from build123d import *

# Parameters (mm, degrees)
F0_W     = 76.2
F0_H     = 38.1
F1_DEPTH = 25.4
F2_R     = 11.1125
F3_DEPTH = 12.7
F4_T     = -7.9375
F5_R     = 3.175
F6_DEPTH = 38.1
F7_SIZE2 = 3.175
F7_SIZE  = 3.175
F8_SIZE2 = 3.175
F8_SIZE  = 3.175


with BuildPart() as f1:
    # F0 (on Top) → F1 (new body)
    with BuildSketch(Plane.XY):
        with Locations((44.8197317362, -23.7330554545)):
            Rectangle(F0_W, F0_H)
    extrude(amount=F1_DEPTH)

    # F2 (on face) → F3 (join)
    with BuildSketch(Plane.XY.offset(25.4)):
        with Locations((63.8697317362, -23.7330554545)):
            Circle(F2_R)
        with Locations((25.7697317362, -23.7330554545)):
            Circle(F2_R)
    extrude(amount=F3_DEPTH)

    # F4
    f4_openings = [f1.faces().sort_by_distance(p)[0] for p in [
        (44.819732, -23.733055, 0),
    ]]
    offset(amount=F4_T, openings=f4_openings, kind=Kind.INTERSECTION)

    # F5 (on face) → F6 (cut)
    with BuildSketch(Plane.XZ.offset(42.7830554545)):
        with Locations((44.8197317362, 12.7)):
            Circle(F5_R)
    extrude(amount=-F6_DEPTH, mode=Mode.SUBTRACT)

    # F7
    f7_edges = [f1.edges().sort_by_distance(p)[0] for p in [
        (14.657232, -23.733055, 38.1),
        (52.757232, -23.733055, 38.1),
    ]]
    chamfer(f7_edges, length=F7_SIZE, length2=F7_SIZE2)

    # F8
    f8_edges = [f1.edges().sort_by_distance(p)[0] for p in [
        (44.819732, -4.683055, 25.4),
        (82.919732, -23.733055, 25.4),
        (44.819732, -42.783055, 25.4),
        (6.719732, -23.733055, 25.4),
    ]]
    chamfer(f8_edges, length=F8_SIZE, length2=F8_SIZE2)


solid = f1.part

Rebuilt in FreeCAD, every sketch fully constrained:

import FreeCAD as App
import Part
import Sketcher
Q = App.Units.Quantity


def edges_at(feature, points):
    """Names of the edges that pass closest to the given points."""
    edges = feature.Shape.Edges
    near = lambda p: min(range(len(edges)), key=lambda i: edges[i].distToShape(Part.Vertex(*p))[0])
    return sorted({f"Edge{near(p) + 1}" for p in points})


def faces_at(feature, points):
    """Names of the faces that lie closest to the given points."""
    faces = feature.Shape.Faces
    near = lambda p: min(range(len(faces)), key=lambda i: faces[i].distToShape(Part.Vertex(*p))[0])
    return sorted({f"Face{near(p) + 1}" for p in points})

doc = App.newDocument("Part")
body = doc.addObject("PartDesign::Body", "Body")

sketch1 = body.newObject("Sketcher::SketchObject", "Sketch")
sketch1.AttachmentSupport = (doc.getObject("XY_Plane"), [""])
sketch1.MapMode = "FlatFace"
sketch1.addGeometry(Part.LineSegment(App.Vector(6.719732, -4.683055, 0), App.Vector(6.719732, -42.783055, 0)), False)
sketch1.addGeometry(Part.LineSegment(App.Vector(6.719732, -42.783055, 0), App.Vector(82.919732, -42.783055, 0)), False)
sketch1.addGeometry(Part.LineSegment(App.Vector(82.919732, -42.783055, 0), App.Vector(82.919732, -4.683055, 0)), False)
sketch1.addGeometry(Part.LineSegment(App.Vector(82.919732, -4.683055, 0), App.Vector(6.719732, -4.683055, 0)), False)
sketch1.addConstraint(Sketcher.Constraint("Coincident", 0, 2, 1, 1))
sketch1.addConstraint(Sketcher.Constraint("Coincident", 1, 2, 2, 1))
sketch1.addConstraint(Sketcher.Constraint("Coincident", 2, 2, 3, 1))
sketch1.addConstraint(Sketcher.Constraint("Coincident", 3, 2, 0, 1))
sketch1.addConstraint(Sketcher.Constraint("Vertical", 0))
sketch1.addConstraint(Sketcher.Constraint("Horizontal", 1))
sketch1.addConstraint(Sketcher.Constraint("Vertical", 2))
sketch1.addConstraint(Sketcher.Constraint("Horizontal", 3))
sketch1.addConstraint(Sketcher.Constraint("DistanceX", 1, 1, 1, 2, Q("3 in")))
sketch1.addConstraint(Sketcher.Constraint("DistanceY", 0, 2, 0, 1, Q("1.5 in")))
sketch1.addConstraint(Sketcher.Constraint("DistanceX", -1, 1, 0, 2, Q("6.719732 mm")))
sketch1.addConstraint(Sketcher.Constraint("DistanceY", 0, 2, -1, 1, Q("42.783055 mm")))
pad1 = body.newObject("PartDesign::Pad", "Pad")
pad1.Profile = sketch1
pad1.Length = Q("1 in")

sketch2 = body.newObject("Sketcher::SketchObject", "Sketch001")
sketch2.AttachmentSupport = (doc.getObject("XY_Plane"), [""])
sketch2.MapMode = "FlatFace"
sketch2.AttachmentOffset = App.Placement(App.Vector(0, 0, 1 * 25.4), App.Rotation())
sketch2.addGeometry(Part.Circle(App.Vector(63.869732, -23.733055, 0), App.Vector(0, 0, 1), 11.1125), False)
sketch2.addGeometry(Part.Circle(App.Vector(25.769732, -23.733055, 0), App.Vector(0, 0, 1), 11.1125), False)
sketch2.addConstraint(Sketcher.Constraint("Equal", 0, 1))
sketch2.addConstraint(Sketcher.Constraint("Horizontal", 0, 3, 1, 3))
sketch2.addConstraint(Sketcher.Constraint("Diameter", 0, Q("0.875 in")))
sketch2.addConstraint(Sketcher.Constraint("DistanceX", 1, 3, 0, 3, Q("1.5 in")))
sketch2.addConstraint(Sketcher.Constraint("DistanceX", -1, 1, 0, 3, Q("63.869732 mm")))
sketch2.addConstraint(Sketcher.Constraint("DistanceY", 0, 3, -1, 1, Q("23.733055 mm")))
pad2 = body.newObject("PartDesign::Pad", "Pad001")
pad2.Profile = sketch2
pad2.Length = Q("0.5 in")
doc.recompute()

thickness = body.newObject("PartDesign::Thickness", "Thickness")
thickness.Base = (pad2, faces_at(pad2, [(44.82, -23.733, 0)]))
thickness.Value = Q("0.3125 in")
thickness.Reversed = True
thickness.Join = "Intersection"

sketch3 = body.newObject("Sketcher::SketchObject", "Sketch002")
sketch3.AttachmentSupport = (doc.getObject("XZ_Plane"), [""])
sketch3.MapMode = "FlatFace"
sketch3.AttachmentOffset = App.Placement(App.Vector(0, 0, 42.783055), App.Rotation())
sketch3.addGeometry(Part.Circle(App.Vector(44.819732, 12.7, 0), App.Vector(0, 0, 1), 3.175), False)
sketch3.addConstraint(Sketcher.Constraint("Diameter", 0, Q("0.25 in")))
sketch3.addConstraint(Sketcher.Constraint("DistanceY", -1, 1, 0, 3, Q("0.5 in")))
sketch3.addConstraint(Sketcher.Constraint("DistanceX", -1, 1, 0, 3, Q("44.819732 mm")))
pocket1 = body.newObject("PartDesign::Pocket", "Pocket")
pocket1.Profile = sketch3
pocket1.Length = Q("1.5 in")
doc.recompute()

chamfer = body.newObject("PartDesign::Chamfer", "Chamfer")
chamfer.Base = (pocket1, edges_at(pocket1, [(14.657, -23.733, 38.1), (52.757, -23.733, 38.1)]))
chamfer.ChamferType = "Two distances"
chamfer.Size = Q("0.125 in")
chamfer.Size2 = Q("0.125 in")
doc.recompute()

chamfer2 = body.newObject("PartDesign::Chamfer", "Chamfer001")
chamfer2.Base = (chamfer, edges_at(chamfer, [
    (44.82, -4.683, 25.4),
    (82.92, -23.733, 25.4),
    (44.82, -42.783, 25.4),
    (6.72, -23.733, 25.4),
]))
chamfer2.ChamferType = "Two distances"
chamfer2.Size = Q("0.125 in")
chamfer2.Size2 = Q("0.125 in")

doc.recompute()
